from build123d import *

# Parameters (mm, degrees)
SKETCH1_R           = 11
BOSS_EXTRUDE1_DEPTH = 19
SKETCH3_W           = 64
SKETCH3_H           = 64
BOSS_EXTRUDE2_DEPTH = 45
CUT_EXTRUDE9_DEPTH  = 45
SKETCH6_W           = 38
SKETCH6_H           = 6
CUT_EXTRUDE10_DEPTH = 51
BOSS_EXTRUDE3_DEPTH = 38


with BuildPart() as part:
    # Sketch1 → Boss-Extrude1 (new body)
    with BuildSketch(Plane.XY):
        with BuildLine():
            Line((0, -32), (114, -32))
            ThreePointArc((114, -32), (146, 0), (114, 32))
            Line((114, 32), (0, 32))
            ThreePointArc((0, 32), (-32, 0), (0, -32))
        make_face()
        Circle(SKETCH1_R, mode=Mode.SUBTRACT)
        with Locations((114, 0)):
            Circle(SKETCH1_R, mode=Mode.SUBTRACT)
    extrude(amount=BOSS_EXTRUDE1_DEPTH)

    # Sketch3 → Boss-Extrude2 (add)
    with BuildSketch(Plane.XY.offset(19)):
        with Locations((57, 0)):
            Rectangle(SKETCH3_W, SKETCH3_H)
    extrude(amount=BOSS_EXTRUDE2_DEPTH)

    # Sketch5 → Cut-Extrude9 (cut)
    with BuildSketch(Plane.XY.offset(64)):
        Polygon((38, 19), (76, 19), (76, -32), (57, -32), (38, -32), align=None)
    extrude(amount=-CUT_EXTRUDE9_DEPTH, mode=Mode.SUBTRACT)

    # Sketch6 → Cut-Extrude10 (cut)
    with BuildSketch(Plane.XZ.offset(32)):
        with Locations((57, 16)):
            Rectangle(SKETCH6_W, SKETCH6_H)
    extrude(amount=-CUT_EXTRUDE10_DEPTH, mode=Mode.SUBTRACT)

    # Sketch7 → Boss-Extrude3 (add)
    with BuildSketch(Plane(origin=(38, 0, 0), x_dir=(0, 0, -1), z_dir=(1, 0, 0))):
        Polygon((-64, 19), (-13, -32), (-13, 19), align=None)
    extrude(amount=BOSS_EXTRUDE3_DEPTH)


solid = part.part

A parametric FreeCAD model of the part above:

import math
import FreeCAD as App
import Part
import Sketcher

doc = App.newDocument("Part")
body = doc.addObject("PartDesign::Body", "Body")

# Sketch on XY plane
sketch1 = body.newObject("Sketcher::SketchObject", "Sketch")
sketch1.AttachmentSupport = (doc.getObject("XY_Plane"), [""])
sketch1.MapMode = "FlatFace"
sketch1.addGeometry([
    Part.LineSegment(App.Vector(0, -32, 0), App.Vector(114, -32, 0)),  # 0
    Part.ArcOfCircle(Part.Circle(App.Vector(114, 0, 0), App.Vector(0, 0, 1), 32), math.radians(-90), math.radians(90)),  # 1
    Part.LineSegment(App.Vector(114, 32, 0), App.Vector(0, 32, 0)),  # 2
    Part.ArcOfCircle(Part.Circle(App.Vector(0, 0, 0), App.Vector(0, 0, 1), 32), math.radians(90), math.radians(270)),  # 3
    Part.Circle(App.Vector(0, 0, 0), App.Vector(0, 0, 1), 11),  # 4
    Part.Circle(App.Vector(114, 0, 0), App.Vector(0, 0, 1), 11),  # 5
], False)
sketch1.addConstraint([
    Sketcher.Constraint("Tangent", 0, 2, 1, 1),
    Sketcher.Constraint("Tangent", 1, 2, 2, 1),
    Sketcher.Constraint("Tangent", 2, 2, 3, 1),
    Sketcher.Constraint("Tangent", 3, 2, 0, 1),
    Sketcher.Constraint("Horizontal", 0),
    Sketcher.Constraint("Horizontal", 2),
    Sketcher.Constraint("Coincident", 3, 3, -1, 1),
    Sketcher.Constraint("Coincident", 4, 3, -1, 1),
    Sketcher.Constraint("Coincident", 5, 3, 1, 3),
    Sketcher.Constraint("Equal", 4, 5),
    Sketcher.Constraint("Diameter", 4, 22.0),
    Sketcher.Constraint("Radius", 1, 32.0),
    Sketcher.Constraint("DistanceX", 0, 1, 0, 2, 114.0),
])
pad1 = body.newObject("PartDesign::Pad", "Pad")
pad1.Profile = sketch1
pad1.Length = 19

# Sketch on XY plane
sketch2 = body.newObject("Sketcher::SketchObject", "Sketch001")
sketch2.AttachmentSupport = (doc.getObject("XY_Plane"), [""])
sketch2.MapMode = "FlatFace"
sketch2.AttachmentOffset = App.Placement(App.Vector(0, 0, 19), App.Rotation())
sketch2.addGeometry([
    Part.LineSegment(App.Vector(25, 32, 0), App.Vector(25, -32, 0)),
    Part.LineSegment(App.Vector(25, -32, 0), App.Vector(89, -32, 0)),
    Part.LineSegment(App.Vector(89, -32, 0), App.Vector(89, 32, 0)),
    Part.LineSegment(App.Vector(89, 32, 0), App.Vector(25, 32, 0)),
], False)
sketch2.addConstraint([
    Sketcher.Constraint("Coincident", 0, 2, 1, 1),
    Sketcher.Constraint("Coincident", 1, 2, 2, 1),
    Sketcher.Constraint("Coincident", 2, 2, 3, 1),
    Sketcher.Constraint("Coincident", 3, 2, 0, 1),
    Sketcher.Constraint("Vertical", 0),
    Sketcher.Constraint("Horizontal", 1),
    Sketcher.Constraint("Vertical", 2),
    Sketcher.Constraint("Horizontal", 3),
    Sketcher.Constraint("Equal", 3, 0),
    Sketcher.Constraint("DistanceX", 1, 1, 1, 2, 64.0),
    Sketcher.Constraint("DistanceX", -1, 1, 0, 2, 25.0),
    Sketcher.Constraint("DistanceY", 0, 2, -1, 1, 32.0),
])
pad2 = body.newObject("PartDesign::Pad", "Pad001")
pad2.Profile = sketch2
pad2.Length = 45

# Sketch on XY plane
sketch3 = body.newObject("Sketcher::SketchObject", "Sketch002")
sketch3.AttachmentSupport = (doc.getObject("XY_Plane"), [""])
sketch3.MapMode = "FlatFace"
sketch3.AttachmentOffset = App.Placement(App.Vector(0, 0, 64), App.Rotation())
sketch3.addGeometry([
    Part.LineSegment(App.Vector(76, 19, 0), App.Vector(38, 19, 0)),
    Part.LineSegment(App.Vector(38, 19, 0), App.Vector(38, -32, 0)),
    Part.LineSegment(App.Vector(38, -32, 0), App.Vector(76, -32, 0)),
    Part.LineSegment(App.Vector(76, -32, 0), App.Vector(76, 19, 0)),
], False)
sketch3.addConstraint([
    Sketcher.Constraint("Coincident", 0, 2, 1, 1),
    Sketcher.Constraint("Coincident", 1, 2, 2, 1),
    Sketcher.Constraint("Coincident", 2, 2, 3, 1),
    Sketcher.Constraint("Coincident", 3, 2, 0, 1),
    Sketcher.Constraint("Horizontal", 0),
    Sketcher.Constraint("Vertical", 1),
    Sketcher.Constraint("Horizontal", 2),
    Sketcher.Constraint("Vertical", 3),
    Sketcher.Constraint("DistanceX", 0, 2, 0, 1, 38.0),
    Sketcher.Constraint("DistanceY", 1, 2, 1, 1, 51.0),
    Sketcher.Constraint("DistanceX", -1, 1, 0, 2, 38.0),
    Sketcher.Constraint("DistanceY", -1, 1, 0, 2, 19.0),
])
pocket1 = body.newObject("PartDesign::Pocket", "Pocket")
pocket1.Profile = sketch3
pocket1.Length = 45

# Sketch on XZ plane
sketch4 = body.newObject("Sketcher::SketchObject", "Sketch003")
sketch4.AttachmentSupport = (doc.getObject("XZ_Plane"), [""])
sketch4.MapMode = "FlatFace"
sketch4.AttachmentOffset = App.Placement(App.Vector(0, 0, 32), App.Rotation())
sketch4.addGeometry([
    Part.LineSegment(App.Vector(38, 19, 0), App.Vector(38, 13, 0)),
    Part.LineSegment(App.Vector(38, 13, 0), App.Vector(76, 13, 0)),
    Part.LineSegment(App.Vector(76, 13, 0), App.Vector(76, 19, 0)),
    Part.LineSegment(App.Vector(76, 19, 0), App.Vector(38, 19, 0)),
], False)
sketch4.addConstraint([
    Sketcher.Constraint("Coincident", 0, 2, 1, 1),
    Sketcher.Constraint("Coincident", 1, 2, 2, 1),
    Sketcher.Constraint("Coincident", 2, 2, 3, 1),
    Sketcher.Constraint("Coincident", 3, 2, 0, 1),
    Sketcher.Constraint("Vertical", 0),
    Sketcher.Constraint("Horizontal", 1),
    Sketcher.Constraint("Vertical", 2),
    Sketcher.Constraint("Horizontal", 3),
    Sketcher.Constraint("DistanceX", 1, 1, 1, 2, 38.0),
    Sketcher.Constraint("DistanceY", 0, 2, 0, 1, 6.0),
    Sketcher.Constraint("DistanceX", -1, 1, 0, 2, 38.0),
    Sketcher.Constraint("DistanceY", -1, 1, 0, 2, 13.0),
])
pocket2 = body.newObject("PartDesign::Pocket", "Pocket001")
pocket2.Profile = sketch4
pocket2.Length = 51

# Sketch on YZ plane
sketch5 = body.newObject("Sketcher::SketchObject", "Sketch004")
sketch5.AttachmentSupport = (doc.getObject("YZ_Plane"), [""])
sketch5.MapMode = "FlatFace"
sketch5.AttachmentOffset = App.Placement(App.Vector(0, 0, 38), App.Rotation())
sketch5.addGeometry([
    Part.LineSegment(App.Vector(19, 64, 0), App.Vector(-32, 13, 0)),
    Part.LineSegment(App.Vector(-32, 13, 0), App.Vector(19, 13, 0)),
    Part.LineSegment(App.Vector(19, 13, 0), App.Vector(19, 64, 0)),
], False)
sketch5.addConstraint([
    Sketcher.Constraint("Coincident", 0, 2, 1, 1),
    Sketcher.Constraint("Coincident", 1, 2, 2, 1),
    Sketcher.Constraint("Coincident", 2, 2, 0, 1),
    Sketcher.Constraint("Horizontal", 1),
    Sketcher.Constraint("Vertical", 2),
    Sketcher.Constraint("Equal", 1, 2),
    Sketcher.Constraint("DistanceX", 1, 1, 1, 2, 51.0),
    Sketcher.Constraint("DistanceX", 0, 2, -1, 1, 32.0),
    Sketcher.Constraint("DistanceY", -1, 1, 0, 2, 13.0),
])
pad3 = body.newObject("PartDesign::Pad", "Pad002")
pad3.Profile = sketch5
pad3.Length = 38

doc.recompute()
